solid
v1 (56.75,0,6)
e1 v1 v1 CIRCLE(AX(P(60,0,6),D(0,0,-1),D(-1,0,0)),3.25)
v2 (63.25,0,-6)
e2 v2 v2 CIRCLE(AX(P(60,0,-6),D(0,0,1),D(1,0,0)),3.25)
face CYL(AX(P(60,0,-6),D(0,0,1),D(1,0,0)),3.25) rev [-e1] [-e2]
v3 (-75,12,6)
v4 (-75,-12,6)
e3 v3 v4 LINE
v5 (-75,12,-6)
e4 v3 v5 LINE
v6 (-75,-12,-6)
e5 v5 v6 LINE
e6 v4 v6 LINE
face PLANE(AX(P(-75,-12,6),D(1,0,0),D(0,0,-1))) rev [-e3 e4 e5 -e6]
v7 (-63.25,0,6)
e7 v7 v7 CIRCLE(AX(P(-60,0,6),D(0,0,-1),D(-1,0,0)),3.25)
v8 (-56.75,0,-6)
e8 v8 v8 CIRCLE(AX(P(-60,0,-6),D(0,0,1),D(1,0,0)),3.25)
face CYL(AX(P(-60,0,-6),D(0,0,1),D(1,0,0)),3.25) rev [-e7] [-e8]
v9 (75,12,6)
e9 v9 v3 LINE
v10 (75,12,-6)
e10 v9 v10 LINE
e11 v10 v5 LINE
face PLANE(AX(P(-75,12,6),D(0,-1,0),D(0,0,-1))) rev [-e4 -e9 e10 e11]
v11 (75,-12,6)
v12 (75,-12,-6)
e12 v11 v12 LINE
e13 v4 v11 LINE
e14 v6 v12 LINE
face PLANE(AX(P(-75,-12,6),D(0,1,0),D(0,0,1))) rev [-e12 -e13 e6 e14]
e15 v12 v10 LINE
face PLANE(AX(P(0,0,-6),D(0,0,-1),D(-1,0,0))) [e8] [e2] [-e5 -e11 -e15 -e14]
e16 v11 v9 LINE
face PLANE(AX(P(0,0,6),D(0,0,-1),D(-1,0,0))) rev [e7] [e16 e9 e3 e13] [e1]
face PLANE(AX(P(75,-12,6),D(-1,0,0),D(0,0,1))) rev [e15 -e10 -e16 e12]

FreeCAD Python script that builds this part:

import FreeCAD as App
import Part
import Sketcher
from FreeCAD import Vector


def add_polygon(sketch, points):
    """Adds a closed chain of lines whose ends are joined by coincident constraints."""
    first, n = sketch.GeometryCount, len(points)
    for a, b in zip(points, points[1:] + points[:1]):
        sketch.addGeometry(Part.LineSegment(App.Vector(*a, 0), App.Vector(*b, 0)), False)
    for i in range(n):
        sketch.addConstraint(Sketcher.Constraint("Coincident", first + i, 2, first + (i + 1) % n, 1))

doc = App.newDocument("Part")
body = doc.addObject("PartDesign::Body", "Body")

# Sketch on XY plane
sketch1 = doc.addObject("Sketcher::SketchObject", "Sketch")
body.addObject(sketch1)
sketch1.AttachmentSupport = (doc.XY_Plane, [""])
sketch1.MapMode = "FlatFace"
add_polygon(sketch1, [(-75, 12), (-75, -12), (75, -12), (75, 12)])  # lines 0-3
sketch1.addConstraint(Sketcher.Constraint("Vertical", 0))
sketch1.addConstraint(Sketcher.Constraint("Horizontal", 1))
sketch1.addConstraint(Sketcher.Constraint("Vertical", 2))
sketch1.addConstraint(Sketcher.Constraint("Horizontal", 3))
sketch1.addConstraint(Sketcher.Constraint("Symmetric", 0, 2, 2, 2, -1, 1))
sketch1.addConstraint(Sketcher.Constraint("DistanceX", 1, 1, 1, 2, 150.0))
sketch1.addConstraint(Sketcher.Constraint("DistanceY", 0, 2, 0, 1, 24.0))
pad1 = doc.addObject("PartDesign::Pad", "Pad")
body.addObject(pad1)
pad1.Profile = sketch1
pad1.Length = 12
pad1.Midplane = True

# Sketch on XY plane
sketch2 = doc.addObject("Sketcher::SketchObject", "Sketch001")
body.addObject(sketch2)
sketch2.AttachmentSupport = (doc.XY_Plane, [""])
sketch2.MapMode = "FlatFace"
sketch2.AttachmentOffset = App.Placement(Vector(0, 0, 6), App.Rotation())
sketch2.addGeometry(Part.Circle(Vector(-60, 0, 0), Vector(0, 0, 1), 3.2), False)
sketch2.addGeometry(Part.Circle(Vector(60, 0, 0), Vector(0, 0, 1), 3.2), False)
sketch2.addConstraint(Sketcher.Constraint("Equal", 0, 1))
sketch2.addConstraint(Sketcher.Constraint("Symmetric", 0, 3, 1, 3, -1, 1))
sketch2.addConstraint(Sketcher.Constraint("PointOnObject", 0, 3, -1))
sketch2.addConstraint(Sketcher.Constraint("Diameter", 0, 6.5))
sketch2.addConstraint(Sketcher.Constraint("DistanceX", 0, 3, -1, 1, 60.0))
pocket1 = doc.addObject("PartDesign::Pocket", "Pocket")
body.addObject(pocket1)
pocket1.Profile = sketch2
pocket1.Type = "ThroughAll"
pocket1.Midplane = True

doc.recompute()
